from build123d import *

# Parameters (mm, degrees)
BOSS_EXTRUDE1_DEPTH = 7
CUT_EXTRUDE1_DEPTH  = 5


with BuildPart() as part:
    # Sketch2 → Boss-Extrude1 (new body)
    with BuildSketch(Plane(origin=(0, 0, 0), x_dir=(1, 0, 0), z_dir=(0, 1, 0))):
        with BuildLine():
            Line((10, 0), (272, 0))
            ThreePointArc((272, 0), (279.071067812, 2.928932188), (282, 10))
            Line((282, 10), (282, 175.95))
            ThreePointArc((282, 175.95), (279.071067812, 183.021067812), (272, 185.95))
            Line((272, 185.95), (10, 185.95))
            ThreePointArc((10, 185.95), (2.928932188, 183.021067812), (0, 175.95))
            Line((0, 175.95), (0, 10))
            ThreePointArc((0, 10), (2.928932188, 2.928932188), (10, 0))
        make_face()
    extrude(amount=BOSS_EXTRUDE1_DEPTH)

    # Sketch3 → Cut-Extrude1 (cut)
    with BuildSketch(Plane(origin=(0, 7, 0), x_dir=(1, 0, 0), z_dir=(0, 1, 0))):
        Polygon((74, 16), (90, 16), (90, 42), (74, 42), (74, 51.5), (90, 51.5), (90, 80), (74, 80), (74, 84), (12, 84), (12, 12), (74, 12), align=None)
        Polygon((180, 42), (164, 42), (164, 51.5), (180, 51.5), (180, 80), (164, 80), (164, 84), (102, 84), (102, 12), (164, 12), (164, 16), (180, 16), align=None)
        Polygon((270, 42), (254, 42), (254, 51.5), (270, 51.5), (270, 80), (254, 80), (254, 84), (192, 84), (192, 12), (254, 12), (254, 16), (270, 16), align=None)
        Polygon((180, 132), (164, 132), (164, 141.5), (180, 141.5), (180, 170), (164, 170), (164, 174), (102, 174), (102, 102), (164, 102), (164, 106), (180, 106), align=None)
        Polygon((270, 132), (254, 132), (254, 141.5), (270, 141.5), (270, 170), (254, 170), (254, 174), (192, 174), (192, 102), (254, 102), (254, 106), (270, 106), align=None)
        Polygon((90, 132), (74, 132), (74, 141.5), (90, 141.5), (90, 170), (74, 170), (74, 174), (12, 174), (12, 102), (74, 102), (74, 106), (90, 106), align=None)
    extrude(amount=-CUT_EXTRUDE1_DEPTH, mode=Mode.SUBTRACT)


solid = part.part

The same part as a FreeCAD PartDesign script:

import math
import FreeCAD as App
import Part
import Sketcher


def add_polygon(sketch, points):
    """Adds a closed chain of lines whose ends are joined by coincident constraints."""
    first, n = sketch.GeometryCount, len(points)
    for a, b in zip(points, points[1:] + points[:1]):
        sketch.addGeometry(Part.LineSegment(App.Vector(*a, 0), App.Vector(*b, 0)), False)
    for i in range(n):
        sketch.addConstraint(Sketcher.Constraint("Coincident", first + i, 2, first + (i + 1) % n, 1))

doc = App.newDocument("Part")
body = doc.addObject("PartDesign::Body", "Body")

sketch1 = body.newObject("Sketcher::SketchObject", "Sketch")
sketch1.AttachmentSupport = (doc.getObject("XZ_Plane"), [""])
sketch1.MapMode = "FlatFace"
sketch1.addGeometry([
    Part.LineSegment(App.Vector(10, 0, 0), App.Vector(272, 0, 0)),
    Part.ArcOfCircle(Part.Circle(App.Vector(272, -10, 0), App.Vector(0, 0, 1), 10), math.radians(0), math.radians(90)),
    Part.LineSegment(App.Vector(282, -10, 0), App.Vector(282, -176, 0)),
    Part.ArcOfCircle(Part.Circle(App.Vector(272, -176, 0), App.Vector(0, 0, 1), 10), math.radians(-90), math.radians(0)),
    Part.LineSegment(App.Vector(272, -186, 0), App.Vector(10, -186, 0)),
    Part.ArcOfCircle(Part.Circle(App.Vector(10, -176, 0), App.Vector(0, 0, 1), 10), math.radians(180), math.radians(270)),
    Part.LineSegment(App.Vector(0, -176, 0), App.Vector(0, -10, 0)),
    Part.ArcOfCircle(Part.Circle(App.Vector(10, -10, 0), App.Vector(0, 0, 1), 10), math.radians(90), math.radians(180)),
], False)
sketch1.addConstraint([
    Sketcher.Constraint("Tangent", 0, 2, 1, 2),
    Sketcher.Constraint("Tangent", 1, 1, 2, 1),
    Sketcher.Constraint("Tangent", 2, 2, 3, 2),
    Sketcher.Constraint("Tangent", 3, 1, 4, 1),
    Sketcher.Constraint("Tangent", 4, 2, 5, 2),
    Sketcher.Constraint("Tangent", 5, 1, 6, 1),
    Sketcher.Constraint("Tangent", 6, 2, 7, 2),
    Sketcher.Constraint("Tangent", 7, 1, 0, 1),
    Sketcher.Constraint("Horizontal", 0),
    Sketcher.Constraint("Vertical", 2),
    Sketcher.Constraint("Horizontal", 4),
    Sketcher.Constraint("Vertical", 6),
    Sketcher.Constraint("Equal", 1, 3),
    Sketcher.Constraint("Equal", 3, 5),
    Sketcher.Constraint("Equal", 5, 7),
    Sketcher.Constraint("PointOnObject", 0, 2, -1),
    Sketcher.Constraint("PointOnObject", 5, 1, -2),
    Sketcher.Constraint("Radius", 1, 10.0),
    Sketcher.Constraint("DistanceX", 0, 1, 0, 2, 262.0),
    Sketcher.Constraint("DistanceY", 2, 2, 2, 1, 165.95),
])
pad1 = body.newObject("PartDesign::Pad", "Pad")
pad1.Profile = sketch1
pad1.Length = 7
pad1.Reversed = True

sketch2 = body.newObject("Sketcher::SketchObject", "Sketch001")
sketch2.AttachmentSupport = (doc.getObject("XZ_Plane"), [""])
sketch2.MapMode = "FlatFace"
sketch2.AttachmentOffset = App.Placement(App.Vector(0, 0, -7), App.Rotation())
add_polygon(sketch2, [(74, -16), (90, -16), (90, -42), (74, -42), (74, -51.5), (90, -51.5), (90, -80), (74, -80), (74, -84), (12, -84), (12, -12), (74, -12)])
add_polygon(sketch2, [(180, -42), (164, -42), (164, -51.5), (180, -51.5), (180, -80), (164, -80), (164, -84), (102, -84), (102, -12), (164, -12), (164, -16), (180, -16)])
add_polygon(sketch2, [(270, -42), (254, -42), (254, -51.5), (270, -51.5), (270, -80), (254, -80), (254, -84), (192, -84), (192, -12), (254, -12), (254, -16), (270, -16)])
add_polygon(sketch2, [(180, -132), (164, -132), (164, -141.5), (180, -141.5), (180, -170), (164, -170), (164, -174), (102, -174), (102, -102), (164, -102), (164, -106), (180, -106)])
add_polygon(sketch2, [(270, -132), (254, -132), (254, -141.5), (270, -141.5), (270, -170), (254, -170), (254, -174), (192, -174), (192, -102), (254, -102), (254, -106), (270, -106)])
add_polygon(sketch2, [(90, -132), (74, -132), (74, -141.5), (90, -141.5), (90, -170), (74, -170), (74, -174), (12, -174), (12, -102), (74, -102), (74, -106), (90, -106)])
sketch2.addConstraint([
    Sketcher.Constraint("Horizontal", 0),
    Sketcher.Constraint("Vertical", 1),
    Sketcher.Constraint("Horizontal", 2),
    Sketcher.Constraint("Vertical", 3),
    Sketcher.Constraint("Horizontal", 4),
    Sketcher.Constraint("Vertical", 5),
    Sketcher.Constraint("Horizontal", 6),
    Sketcher.Constraint("Vertical", 7),
    Sketcher.Constraint("Horizontal", 8),
    Sketcher.Constraint("Vertical", 9),
    Sketcher.Constraint("Horizontal", 10),
    Sketcher.Constraint("Vertical", 11),
    Sketcher.Constraint("Horizontal", 12),
    Sketcher.Constraint("Vertical", 13),
    Sketcher.Constraint("Horizontal", 14),
    Sketcher.Constraint("Vertical", 15),
    Sketcher.Constraint("Horizontal", 16),
    Sketcher.Constraint("Vertical", 17),
    Sketcher.Constraint("Horizontal", 18),
    Sketcher.Constraint("Vertical", 19),
    Sketcher.Constraint("Horizontal", 20),
    Sketcher.Constraint("Vertical", 21),
    Sketcher.Constraint("Horizontal", 22),
    Sketcher.Constraint("Vertical", 23),
    Sketcher.Constraint("Horizontal", 24),
    Sketcher.Constraint("Vertical", 25),
    Sketcher.Constraint("Horizontal", 26),
    Sketcher.Constraint("Vertical", 27),
    Sketcher.Constraint("Horizontal", 28),
    Sketcher.Constraint("Vertical", 29),
    Sketcher.Constraint("Horizontal", 30),
    Sketcher.Constraint("Vertical", 31),
    Sketcher.Constraint("Horizontal", 32),
    Sketcher.Constraint("Vertical", 33),
    Sketcher.Constraint("Horizontal", 34),
    Sketcher.Constraint("Vertical", 35),
    Sketcher.Constraint("Horizontal", 36),
    Sketcher.Constraint("Vertical", 37),
    Sketcher.Constraint("Horizontal", 38),
    Sketcher.Constraint("Vertical", 39),
    Sketcher.Constraint("Horizontal", 40),
    Sketcher.Constraint("Vertical", 41),
    Sketcher.Constraint("Horizontal", 42),
    Sketcher.Constraint("Vertical", 43),
    Sketcher.Constraint("Horizontal", 44),
    Sketcher.Constraint("Vertical", 45),
    Sketcher.Constraint("Horizontal", 46),
    Sketcher.Constraint("Vertical", 47),
    Sketcher.Constraint("Horizontal", 48),
    Sketcher.Constraint("Vertical", 49),
    Sketcher.Constraint("Horizontal", 50),
    Sketcher.Constraint("Vertical", 51),
    Sketcher.Constraint("Horizontal", 52),
    Sketcher.Constraint("Vertical", 53),
    Sketcher.Constraint("Horizontal", 54),
    Sketcher.Constraint("Vertical", 55),
    Sketcher.Constraint("Horizontal", 56),
    Sketcher.Constraint("Vertical", 57),
    Sketcher.Constraint("Horizontal", 58),
    Sketcher.Constraint("Vertical", 59),
    Sketcher.Constraint("Horizontal", 60),
    Sketcher.Constraint("Vertical", 61),
    Sketcher.Constraint("Horizontal", 62),
    Sketcher.Constraint("Vertical", 63),
    Sketcher.Constraint("Horizontal", 64),
    Sketcher.Constraint("Vertical", 65),
    Sketcher.Constraint("Horizontal", 66),
    Sketcher.Constraint("Vertical", 67),
    Sketcher.Constraint("Horizontal", 68),
    Sketcher.Constraint("Vertical", 69),
    Sketcher.Constraint("Horizontal", 70),
    Sketcher.Constraint("Vertical", 71),
    Sketcher.Constraint("Horizontal", 2, 2, 12, 2),
    Sketcher.Constraint("Horizontal", 4, 2, 13, 2),
    Sketcher.Constraint("Horizontal", 6, 2, 15, 2),
    Sketcher.Constraint("Horizontal", 8, 2, 17, 2),
    Sketcher.Constraint("Horizontal", 10, 2, 19, 2),
    Sketcher.Constraint("Horizontal", 11, 2, 21, 2),
    Sketcher.Constraint("Horizontal", 23, 2, 24, 2),
    Sketcher.Constraint("Horizontal", 14, 2, 25, 2),
    Sketcher.Constraint("Horizontal", 16, 2, 27, 2),
    Sketcher.Constraint("Horizontal", 18, 2, 29, 2),
    Sketcher.Constraint("Horizontal", 20, 2, 31, 2),
    Sketcher.Constraint("Horizontal", 22, 2, 33, 2),
    Sketcher.Constraint("Horizontal", 47, 2, 48, 2),
    Sketcher.Constraint("Horizontal", 38, 2, 49, 2),
    Sketcher.Constraint("Horizontal", 40, 2, 51, 2),
    Sketcher.Constraint("Horizontal", 42, 2, 53, 2),
    Sketcher.Constraint("Horizontal", 44, 2, 55, 2),
    Sketcher.Constraint("Horizontal", 46, 2, 57, 2),
    Sketcher.Constraint("Horizontal", 59, 2, 60, 2),
    Sketcher.Constraint("Horizontal", 50, 2, 61, 2),
    Sketcher.Constraint("Horizontal", 52, 2, 63, 2),
    Sketcher.Constraint("Horizontal", 54, 2, 65, 2),
    Sketcher.Constraint("Horizontal", 56, 2, 67, 2),
    Sketcher.Constraint("Horizontal", 58, 2, 69, 2),
    Sketcher.Constraint("Vertical", 1, 2, 4, 2),
    Sketcher.Constraint("Vertical", 3, 2, 6, 2),
    Sketcher.Constraint("Vertical", 7, 2, 10, 2),
    Sketcher.Constraint("Vertical", 13, 2, 16, 2),
    Sketcher.Constraint("Vertical", 17, 2, 20, 2),
    Sketcher.Constraint("Vertical", 15, 2, 22, 2),
    Sketcher.Constraint("Vertical", 25, 2, 28, 2),
    Sketcher.Constraint("Vertical", 29, 2, 32, 2),
    Sketcher.Constraint("Vertical", 27, 2, 34, 2),
    Sketcher.Constraint("Vertical", 21, 2, 36, 2),
    Sketcher.Constraint("Vertical", 23, 2, 38, 2),
    Sketcher.Constraint("Vertical", 37, 2, 40, 2),
    Sketcher.Constraint("Vertical", 19, 2, 42, 2),
    Sketcher.Constraint("Vertical", 41, 2, 44, 2),
    Sketcher.Constraint("Vertical", 39, 2, 46, 2),
    Sketcher.Constraint("Vertical", 33, 2, 48, 2),
    Sketcher.Constraint("Vertical", 35, 2, 50, 2),
    Sketcher.Constraint("Vertical", 49, 2, 52, 2),
    Sketcher.Constraint("Vertical", 31, 2, 54, 2),
    Sketcher.Constraint("Vertical", 53, 2, 56, 2),
    Sketcher.Constraint("Vertical", 51, 2, 58, 2),
    Sketcher.Constraint("Vertical", 11, 2, 60, 2),
    Sketcher.Constraint("Vertical", 5, 2, 62, 2),
    Sketcher.Constraint("Vertical", 61, 2, 64, 2),
    Sketcher.Constraint("Vertical", 9, 2, 66, 2),
    Sketcher.Constraint("Vertical", 65, 2, 68, 2),
    Sketcher.Constraint("Vertical", 63, 2, 70, 2),
    Sketcher.Constraint("Equal", 6, 12),
    Sketcher.Constraint("Equal", 10, 18),
    Sketcher.Constraint("Equal", 22, 24),
    Sketcher.Constraint("Equal", 20, 30),
    Sketcher.Constraint("Equal", 7, 11),
    Sketcher.Constraint("Equal", 25, 37),
    Sketcher.Constraint("Equal", 27, 39),
    Sketcher.Constraint("Equal", 33, 41),
    Sketcher.Constraint("Equal", 31, 43),
    Sketcher.Constraint("Equal", 41, 45),
    Sketcher.Constraint("DistanceX", 0, 1, 0, 2, 16.0),
    Sketcher.Constraint("DistanceX", 8, 2, 8, 1, 62.0),
    Sketcher.Constraint("DistanceY", 1, 2, 1, 1, 26.0),
    Sketcher.Constraint("DistanceY", 7, 2, 7, 1, 4.0),
    Sketcher.Constraint("DistanceY", 9, 1, 9, 2, 72.0),
    Sketcher.Constraint("DistanceY", 3, 2, 3, 1, 9.5),
    Sketcher.Constraint("DistanceX", -1, 1, 0, 2, 90.0),
    Sketcher.Constraint("DistanceY", 0, 2, -1, 1, 16.0),
    Sketcher.Constraint("DistanceX", -1, 1, 12, 2, 164.0),
    Sketcher.Constraint("DistanceX", -1, 1, 24, 2, 254.0),
    Sketcher.Constraint("DistanceY", 36, 2, -1, 1, 132.0),
])
pocket1 = body.newObject("PartDesign::Pocket", "Pocket")
pocket1.Profile = sketch2
pocket1.Length = 5
pocket1.Reversed = True

doc.recompute()
